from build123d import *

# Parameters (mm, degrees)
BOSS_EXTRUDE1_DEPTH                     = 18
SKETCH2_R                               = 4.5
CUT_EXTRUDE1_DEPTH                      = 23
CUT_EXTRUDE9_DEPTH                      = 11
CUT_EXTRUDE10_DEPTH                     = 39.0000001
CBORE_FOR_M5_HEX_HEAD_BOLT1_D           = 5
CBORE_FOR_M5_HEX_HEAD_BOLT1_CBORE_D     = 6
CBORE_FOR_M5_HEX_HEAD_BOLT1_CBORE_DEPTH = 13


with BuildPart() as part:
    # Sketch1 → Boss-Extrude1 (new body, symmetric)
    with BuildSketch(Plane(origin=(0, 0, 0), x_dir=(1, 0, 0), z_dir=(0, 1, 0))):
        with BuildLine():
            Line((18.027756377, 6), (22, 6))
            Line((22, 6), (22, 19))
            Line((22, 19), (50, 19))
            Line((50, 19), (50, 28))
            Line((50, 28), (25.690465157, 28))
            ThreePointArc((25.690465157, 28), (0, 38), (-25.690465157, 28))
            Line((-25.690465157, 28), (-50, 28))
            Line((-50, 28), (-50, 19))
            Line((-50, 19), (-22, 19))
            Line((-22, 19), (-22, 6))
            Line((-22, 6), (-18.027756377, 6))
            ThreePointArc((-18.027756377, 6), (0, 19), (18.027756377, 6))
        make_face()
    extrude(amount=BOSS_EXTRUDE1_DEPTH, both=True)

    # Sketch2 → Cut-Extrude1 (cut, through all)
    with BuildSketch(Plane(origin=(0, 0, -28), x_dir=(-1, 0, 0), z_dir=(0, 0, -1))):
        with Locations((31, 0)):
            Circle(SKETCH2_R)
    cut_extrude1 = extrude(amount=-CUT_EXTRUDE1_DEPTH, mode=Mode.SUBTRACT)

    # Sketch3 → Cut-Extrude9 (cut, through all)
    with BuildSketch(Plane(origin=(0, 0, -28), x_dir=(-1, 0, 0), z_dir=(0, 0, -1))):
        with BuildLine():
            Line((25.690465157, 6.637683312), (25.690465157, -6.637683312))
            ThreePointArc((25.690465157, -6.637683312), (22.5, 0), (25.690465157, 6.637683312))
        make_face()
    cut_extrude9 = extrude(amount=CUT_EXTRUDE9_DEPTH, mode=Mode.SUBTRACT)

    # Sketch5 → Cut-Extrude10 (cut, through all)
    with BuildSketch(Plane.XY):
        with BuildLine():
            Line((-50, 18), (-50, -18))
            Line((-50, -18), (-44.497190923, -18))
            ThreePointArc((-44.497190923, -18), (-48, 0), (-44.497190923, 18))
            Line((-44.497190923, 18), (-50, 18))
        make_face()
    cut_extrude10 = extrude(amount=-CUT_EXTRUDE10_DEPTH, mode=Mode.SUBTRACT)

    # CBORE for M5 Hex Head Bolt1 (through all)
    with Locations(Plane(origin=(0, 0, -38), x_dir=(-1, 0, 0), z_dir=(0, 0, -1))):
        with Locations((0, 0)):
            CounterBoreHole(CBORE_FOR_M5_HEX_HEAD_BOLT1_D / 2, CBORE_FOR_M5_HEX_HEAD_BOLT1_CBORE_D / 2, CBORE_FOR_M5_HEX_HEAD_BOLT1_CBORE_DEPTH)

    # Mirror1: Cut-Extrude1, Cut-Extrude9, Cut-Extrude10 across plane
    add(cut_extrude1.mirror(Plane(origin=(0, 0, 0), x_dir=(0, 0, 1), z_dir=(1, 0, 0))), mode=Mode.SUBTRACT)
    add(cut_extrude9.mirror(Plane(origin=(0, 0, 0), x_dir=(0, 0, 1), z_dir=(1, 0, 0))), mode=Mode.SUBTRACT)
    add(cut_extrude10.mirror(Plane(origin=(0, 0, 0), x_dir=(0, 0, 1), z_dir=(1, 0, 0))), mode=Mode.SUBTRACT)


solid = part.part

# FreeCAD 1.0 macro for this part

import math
import FreeCAD as App
import Part
import Sketcher
from FreeCAD import Vector

doc = App.newDocument("Part")
body = doc.addObject("PartDesign::Body", "Body")

# Sketch on XZ plane
sketch1 = body.newObject("Sketcher::SketchObject", "Sketch")
sketch1.AttachmentSupport = (doc.getObject("XZ_Plane"), [""])
sketch1.MapMode = "FlatFace"
sketch1.addGeometry([
    Part.LineSegment(Vector(18, -6, 0), Vector(22, -6, 0)),  # 0
    Part.LineSegment(Vector(22, -6, 0), Vector(22, -19, 0)),  # 1
    Part.LineSegment(Vector(22, -19, 0), Vector(50, -19, 0)),  # 2
    Part.LineSegment(Vector(50, -19, 0), Vector(50, -28, 0)),  # 3
    Part.LineSegment(Vector(50, -28, 0), Vector(25.7, -28, 0)),  # 4
    Part.ArcOfCircle(Part.Circle(Vector(0, 0, 0), Vector(0, 0, 1), 38), math.radians(-133), math.radians(-47)),  # 5
    Part.LineSegment(Vector(-25.7, -28, 0), Vector(-50, -28, 0)),  # 6
    Part.LineSegment(Vector(-50, -28, 0), Vector(-50, -19, 0)),  # 7
    Part.LineSegment(Vector(-50, -19, 0), Vector(-22, -19, 0)),  # 8
    Part.LineSegment(Vector(-22, -19, 0), Vector(-22, -6, 0)),  # 9
    Part.LineSegment(Vector(-22, -6, 0), Vector(-18, -6, 0)),  # 10
    Part.ArcOfCircle(Part.Circle(Vector(0, 0, 0), Vector(0, 0, 1), 19), math.radians(-162), math.radians(-18)),  # 11
], False)
sketch1.addConstraint([
    Sketcher.Constraint("Coincident", 0, 2, 1, 1),
    Sketcher.Constraint("Coincident", 1, 2, 2, 1),
    Sketcher.Constraint("Coincident", 2, 2, 3, 1),
    Sketcher.Constraint("Coincident", 3, 2, 4, 1),
    Sketcher.Constraint("Coincident", 4, 2, 5, 2),
    Sketcher.Constraint("Coincident", 5, 1, 6, 1),
    Sketcher.Constraint("Coincident", 6, 2, 7, 1),
    Sketcher.Constraint("Coincident", 7, 2, 8, 1),
    Sketcher.Constraint("Coincident", 8, 2, 9, 1),
    Sketcher.Constraint("Coincident", 9, 2, 10, 1),
    Sketcher.Constraint("Coincident", 10, 2, 11, 1),
    Sketcher.Constraint("Coincident", 11, 2, 0, 1),
    Sketcher.Constraint("Horizontal", 0),
    Sketcher.Constraint("Vertical", 1),
    Sketcher.Constraint("Horizontal", 2),
    Sketcher.Constraint("Vertical", 3),
    Sketcher.Constraint("Horizontal", 4),
    Sketcher.Constraint("Horizontal", 6),
    Sketcher.Constraint("Vertical", 7),
    Sketcher.Constraint("Horizontal", 8),
    Sketcher.Constraint("Vertical", 9),
    Sketcher.Constraint("Horizontal", 10),
    Sketcher.Constraint("Coincident", 5, 3, -1, 1),
    Sketcher.Constraint("Coincident", 11, 3, -1, 1),
    Sketcher.Constraint("Symmetric", 3, 2, 6, 2, -2),
    Sketcher.Constraint("Symmetric", 1, 2, 8, 2, -2),
    Sketcher.Constraint("Horizontal", 0, 2, 9, 2),
    Sketcher.Constraint("Radius", 5, 38.0),
    Sketcher.Constraint("Radius", 11, 19.0),
    Sketcher.Constraint("DistanceX", 2, 1, 2, 2, 28.0),
    Sketcher.Constraint("DistanceY", 1, 2, 1, 1, 13.0),
    Sketcher.Constraint("DistanceY", 3, 2, 3, 1, 9.0),
    Sketcher.Constraint("DistanceX", -1, 1, 0, 2, 22.0),
    Sketcher.Constraint("DistanceY", 0, 2, -1, 1, 6.0),
])
pad1 = body.newObject("PartDesign::Pad", "Pad")
pad1.Profile = sketch1
pad1.Length = 36
pad1.Midplane = True

# Sketch on XY plane
sketch2 = body.newObject("Sketcher::SketchObject", "Sketch001")
sketch2.AttachmentSupport = (doc.getObject("XY_Plane"), [""])
sketch2.MapMode = "FlatFace"
sketch2.AttachmentOffset = App.Placement(Vector(0, 0, -28), App.Rotation())
sketch2.addGeometry(Part.Circle(Vector(-31, 0, 0), Vector(0, 0, 1), 4.5), False)
sketch2.addConstraint([
    Sketcher.Constraint("PointOnObject", 0, 3, -1),
    Sketcher.Constraint("Diameter", 0, 9.0),
    Sketcher.Constraint("DistanceX", 0, 3, -1, 1, 31.0),
])
pocket1 = body.newObject("PartDesign::Pocket", "Pocket")
pocket1.Profile = sketch2
pocket1.Type = "ThroughAll"
pocket1.Reversed = True

# Sketch on XY plane
sketch3 = body.newObject("Sketcher::SketchObject", "Sketch002")
sketch3.AttachmentSupport = (doc.getObject("XY_Plane"), [""])
sketch3.MapMode = "FlatFace"
sketch3.AttachmentOffset = App.Placement(Vector(0, 0, -28), App.Rotation())
sketch3.addGeometry([
    Part.LineSegment(Vector(-26, -7, 0), Vector(-26, 7, 0)),
    Part.ArcOfCircle(Part.Circle(Vector(-31, 0, 0), Vector(0, 0, 1), 8), math.radians(-51), math.radians(51)),
], False)
sketch3.addConstraint([
    Sketcher.Constraint("Coincident", 0, 1, 1, 1),
    Sketcher.Constraint("Coincident", 1, 2, 0, 2),
    Sketcher.Constraint("Vertical", 0),
    Sketcher.Constraint("PointOnObject", 1, 3, -1),
    Sketcher.Constraint("Radius", 1, 8.5),
    Sketcher.Constraint("DistanceX", 1, 3, -1, 1, 31.0),
    Sketcher.Constraint("DistanceY", 0, 1, 0, 2, 13.275367),
])
pocket2 = body.newObject("PartDesign::Pocket", "Pocket001")
pocket2.Profile = sketch3
pocket2.Type = "ThroughAll"

# Sketch on XY plane
sketch4 = body.newObject("Sketcher::SketchObject", "Sketch003")
sketch4.AttachmentSupport = (doc.getObject("XY_Plane"), [""])
sketch4.MapMode = "FlatFace"
sketch4.addGeometry([
    Part.LineSegment(Vector(-50, 18, 0), Vector(-50, -18, 0)),
    Part.LineSegment(Vector(-50, -18, 0), Vector(-44, -18, 0)),
    Part.ArcOfCircle(Part.Circle(Vector(0, 0, 0), Vector(0, 0, 1), 48), math.radians(158), math.radians(202)),
    Part.LineSegment(Vector(-44, 18, 0), Vector(-50, 18, 0)),
], False)
sketch4.addConstraint([
    Sketcher.Constraint("Coincident", 0, 2, 1, 1),
    Sketcher.Constraint("Coincident", 1, 2, 2, 2),
    Sketcher.Constraint("Coincident", 2, 1, 3, 1),
    Sketcher.Constraint("Coincident", 3, 2, 0, 1),
    Sketcher.Constraint("Vertical", 0),
    Sketcher.Constraint("Horizontal", 1),
    Sketcher.Constraint("Horizontal", 3),
    Sketcher.Constraint("Coincident", 2, 3, -1, 1),
    Sketcher.Constraint("Vertical", 1, 2, 2, 1),
    Sketcher.Constraint("Radius", 2, 48.0),
    Sketcher.Constraint("DistanceY", 0, 2, 0, 1, 36.0),
    Sketcher.Constraint("DistanceX", 0, 2, -1, 1, 50.0),
])
pocket3 = body.newObject("PartDesign::Pocket", "Pocket002")
pocket3.Profile = sketch4
pocket3.Type = "ThroughAll"

# Sketch on XY plane
sketch5 = body.newObject("Sketcher::SketchObject", "Sketch004")
sketch5.AttachmentSupport = (doc.getObject("XY_Plane"), [""])
sketch5.MapMode = "FlatFace"
sketch5.AttachmentOffset = App.Placement(Vector(0, 0, -38), App.Rotation())
sketch5.addGeometry(Part.Circle(Vector(0, 0, 0), Vector(0, 0, 1), 2.5), False)
sketch5.addConstraint([
    Sketcher.Constraint("Coincident", 0, 3, -1, 1),
    Sketcher.Constraint("Diameter", 0, 5.0),
])
doc.recompute()
hole = body.newObject("PartDesign::Hole", "Hole")
hole.Profile = sketch5
hole.ThreadType = "None"
hole.Diameter = 5
hole.DepthType = "ThroughAll"
hole.HoleCutType = "Counterbore"
hole.HoleCutDiameter = 6
hole.HoleCutDepth = 13
hole.Reversed = True
doc.recompute()

mirrored = body.newObject("PartDesign::Mirrored", "Mirrored")
mirrored.Originals = [pocket1, pocket2, pocket3]
mirrored.MirrorPlane = (doc.getObject("YZ_Plane"), [""])
body.Tip = mirrored

doc.recompute()
